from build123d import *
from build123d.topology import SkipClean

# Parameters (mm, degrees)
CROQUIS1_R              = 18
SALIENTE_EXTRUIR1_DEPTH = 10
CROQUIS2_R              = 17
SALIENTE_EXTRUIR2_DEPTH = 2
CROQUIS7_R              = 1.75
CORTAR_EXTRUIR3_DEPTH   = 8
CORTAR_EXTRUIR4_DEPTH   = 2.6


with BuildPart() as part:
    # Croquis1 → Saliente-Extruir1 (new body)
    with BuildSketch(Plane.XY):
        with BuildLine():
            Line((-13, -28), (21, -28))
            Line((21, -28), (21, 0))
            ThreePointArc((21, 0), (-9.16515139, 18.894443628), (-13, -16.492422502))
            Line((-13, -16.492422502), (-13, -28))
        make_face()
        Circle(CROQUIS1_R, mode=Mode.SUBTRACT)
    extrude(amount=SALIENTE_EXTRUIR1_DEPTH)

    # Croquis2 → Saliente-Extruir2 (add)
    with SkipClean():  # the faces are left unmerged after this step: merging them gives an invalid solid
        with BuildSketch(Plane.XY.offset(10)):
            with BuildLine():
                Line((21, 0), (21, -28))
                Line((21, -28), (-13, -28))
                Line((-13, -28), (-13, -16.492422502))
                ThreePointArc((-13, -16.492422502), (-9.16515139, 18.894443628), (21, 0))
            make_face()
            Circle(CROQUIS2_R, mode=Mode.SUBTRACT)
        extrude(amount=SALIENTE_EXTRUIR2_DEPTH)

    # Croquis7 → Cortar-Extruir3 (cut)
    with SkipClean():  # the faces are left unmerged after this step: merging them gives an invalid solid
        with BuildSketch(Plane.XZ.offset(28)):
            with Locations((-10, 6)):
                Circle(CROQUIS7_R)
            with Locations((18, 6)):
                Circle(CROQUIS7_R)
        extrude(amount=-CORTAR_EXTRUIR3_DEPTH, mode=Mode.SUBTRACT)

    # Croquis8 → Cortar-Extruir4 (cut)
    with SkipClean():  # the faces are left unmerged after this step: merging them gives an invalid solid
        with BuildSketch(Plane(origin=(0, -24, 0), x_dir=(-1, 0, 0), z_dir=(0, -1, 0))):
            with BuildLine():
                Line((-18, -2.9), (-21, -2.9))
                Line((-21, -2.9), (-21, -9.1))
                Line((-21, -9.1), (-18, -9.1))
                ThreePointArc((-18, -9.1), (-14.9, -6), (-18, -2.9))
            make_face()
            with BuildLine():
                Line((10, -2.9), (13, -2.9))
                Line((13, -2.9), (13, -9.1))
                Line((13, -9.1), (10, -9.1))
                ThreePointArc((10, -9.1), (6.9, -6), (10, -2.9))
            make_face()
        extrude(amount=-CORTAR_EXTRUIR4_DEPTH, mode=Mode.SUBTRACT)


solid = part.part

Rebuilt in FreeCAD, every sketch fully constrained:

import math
import FreeCAD as App
import Part
import Sketcher
Q = App.Units.Quantity

doc = App.newDocument("Part")
body = doc.addObject("PartDesign::Body", "Body")

# Sketch on XY plane
sketch1 = body.newObject("Sketcher::SketchObject", "Sketch")
sketch1.AttachmentSupport = (doc.getObject("XY_Plane"), [""])
sketch1.MapMode = "FlatFace"
sketch1.addGeometry([
    Part.LineSegment(App.Vector(-13, -28, 0), App.Vector(21, -28, 0)),  # 0
    Part.LineSegment(App.Vector(21, -28, 0), App.Vector(21, 0, 0)),  # 1
    Part.ArcOfCircle(Part.Circle(App.Vector(0, 0, 0), App.Vector(0, 0, 1), 21), math.radians(0), math.radians(232)),  # 2
    Part.LineSegment(App.Vector(-13, -16, 0), App.Vector(-13, -28, 0)),  # 3
    Part.Circle(App.Vector(0, 0, 0), App.Vector(0, 0, 1), 18),  # 4
], False)
sketch1.addConstraint([
    Sketcher.Constraint("Coincident", 0, 2, 1, 1),
    Sketcher.Constraint("Tangent", 1, 2, 2, 1),
    Sketcher.Constraint("Coincident", 2, 2, 3, 1),
    Sketcher.Constraint("Coincident", 3, 2, 0, 1),
    Sketcher.Constraint("Horizontal", 0),
    Sketcher.Constraint("Vertical", 1),
    Sketcher.Constraint("Vertical", 3),
    Sketcher.Constraint("Coincident", 2, 3, -1, 1),
    Sketcher.Constraint("Coincident", 4, 3, -1, 1),
    Sketcher.Constraint("Diameter", 4, Q("36 mm")),
    Sketcher.Constraint("Radius", 2, Q("21 mm")),
    Sketcher.Constraint("DistanceX", 0, 1, 0, 2, Q("34 mm")),
    Sketcher.Constraint("DistanceY", 1, 1, 1, 2, Q("28 mm")),
])
pad1 = body.newObject("PartDesign::Pad", "Pad")
pad1.Profile = sketch1
pad1.Length = 10

# Sketch on XY plane
sketch2 = body.newObject("Sketcher::SketchObject", "Sketch001")
sketch2.AttachmentSupport = (doc.getObject("XY_Plane"), [""])
sketch2.MapMode = "FlatFace"
sketch2.AttachmentOffset = App.Placement(App.Vector(0, 0, 10), App.Rotation())
sketch2.addGeometry([
    Part.LineSegment(App.Vector(21, -28, 0), App.Vector(21, 0, 0)),  # 0
    Part.ArcOfCircle(Part.Circle(App.Vector(0, 0, 0), App.Vector(0, 0, 1), 21), math.radians(0), math.radians(232)),  # 1
    Part.LineSegment(App.Vector(-13, -16, 0), App.Vector(-13, -28, 0)),  # 2
    Part.LineSegment(App.Vector(-13, -28, 0), App.Vector(21, -28, 0)),  # 3
    Part.Circle(App.Vector(0, 0, 0), App.Vector(0, 0, 1), 17),  # 4
], False)
sketch2.addConstraint([
    Sketcher.Constraint("Tangent", 0, 2, 1, 1),
    Sketcher.Constraint("Coincident", 1, 2, 2, 1),
    Sketcher.Constraint("Coincident", 2, 2, 3, 1),
    Sketcher.Constraint("Coincident", 3, 2, 0, 1),
    Sketcher.Constraint("Vertical", 0),
    Sketcher.Constraint("Vertical", 2),
    Sketcher.Constraint("Horizontal", 3),
    Sketcher.Constraint("Coincident", 1, 3, -1, 1),
    Sketcher.Constraint("Coincident", 4, 3, -1, 1),
    Sketcher.Constraint("Diameter", 4, Q("34 mm")),
    Sketcher.Constraint("Radius", 1, Q("21 mm")),
    Sketcher.Constraint("DistanceX", 3, 1, 3, 2, Q("34 mm")),
    Sketcher.Constraint("DistanceY", 0, 1, 0, 2, Q("28 mm")),
])
pad2 = body.newObject("PartDesign::Pad", "Pad001")
pad2.Profile = sketch2
pad2.Length = 2

# Sketch on XZ plane
sketch3 = body.newObject("Sketcher::SketchObject", "Sketch002")
sketch3.AttachmentSupport = (doc.getObject("XZ_Plane"), [""])
sketch3.MapMode = "FlatFace"
sketch3.AttachmentOffset = App.Placement(App.Vector(0, 0, 28), App.Rotation())
sketch3.addGeometry([
    Part.Circle(App.Vector(-10, 6, 0), App.Vector(0, 0, 1), 1.8),
    Part.Circle(App.Vector(18, 6, 0), App.Vector(0, 0, 1), 1.8),
], False)
sketch3.addConstraint([
    Sketcher.Constraint("Equal", 0, 1),
    Sketcher.Constraint("Horizontal", 0, 3, 1, 3),
    Sketcher.Constraint("Diameter", 0, Q("3.5 mm")),
    Sketcher.Constraint("DistanceX", 0, 3, -1, 1, Q("10 mm")),
    Sketcher.Constraint("DistanceY", -1, 1, 0, 3, Q("6 mm")),
    Sketcher.Constraint("DistanceX", -1, 1, 1, 3, Q("18 mm")),
])
pocket1 = body.newObject("PartDesign::Pocket", "Pocket")
pocket1.Profile = sketch3
pocket1.Length = 8

# Sketch on XZ plane
sketch4 = body.newObject("Sketcher::SketchObject", "Sketch003")
sketch4.AttachmentSupport = (doc.getObject("XZ_Plane"), [""])
sketch4.MapMode = "FlatFace"
sketch4.AttachmentOffset = App.Placement(App.Vector(0, 0, 24), App.Rotation())
sketch4.addGeometry([
    Part.LineSegment(App.Vector(18, 2.9, 0), App.Vector(21, 2.9, 0)),  # 0
    Part.LineSegment(App.Vector(21, 2.9, 0), App.Vector(21, 9.1, 0)),  # 1
    Part.LineSegment(App.Vector(21, 9.1, 0), App.Vector(18, 9.1, 0)),  # 2
    Part.ArcOfCircle(Part.Circle(App.Vector(18, 6, 0), App.Vector(0, 0, 1), 3.1), math.radians(90), math.radians(270)),  # 3
    Part.LineSegment(App.Vector(-13, 2.9, 0), App.Vector(-10, 2.9, 0)),  # 4
    Part.ArcOfCircle(Part.Circle(App.Vector(-10, 6, 0), App.Vector(0, 0, 1), 3.1), math.radians(-90), math.radians(90)),  # 5
    Part.LineSegment(App.Vector(-10, 9.1, 0), App.Vector(-13, 9.1, 0)),  # 6
    Part.LineSegment(App.Vector(-13, 9.1, 0), App.Vector(-13, 2.9, 0)),  # 7
], False)
sketch4.addConstraint([
    Sketcher.Constraint("Coincident", 0, 2, 1, 1),
    Sketcher.Constraint("Coincident", 1, 2, 2, 1),
    Sketcher.Constraint("Tangent", 2, 2, 3, 1),
    Sketcher.Constraint("Tangent", 3, 2, 0, 1),
    Sketcher.Constraint("Tangent", 4, 2, 5, 1),
    Sketcher.Constraint("Tangent", 5, 2, 6, 1),
    Sketcher.Constraint("Coincident", 6, 2, 7, 1),
    Sketcher.Constraint("Coincident", 7, 2, 4, 1),
    Sketcher.Constraint("Horizontal", 0),
    Sketcher.Constraint("Vertical", 1),
    Sketcher.Constraint("Horizontal", 2),
    Sketcher.Constraint("Horizontal", 4),
    Sketcher.Constraint("Horizontal", 6),
    Sketcher.Constraint("Vertical", 7),
    Sketcher.Constraint("Equal", 3, 5),
    Sketcher.Constraint("Horizontal", 3, 3, 5, 3),
    Sketcher.Constraint("Equal", 2, 4),
    Sketcher.Constraint("Radius", 3, Q("3.1 mm")),
    Sketcher.Constraint("DistanceX", 0, 1, 0, 2, Q("3 mm")),
    Sketcher.Constraint("DistanceX", -1, 1, 3, 3, Q("18 mm")),
    Sketcher.Constraint("DistanceY", -1, 1, 3, 3, Q("6 mm")),
    Sketcher.Constraint("DistanceX", 5, 3, -1, 1, Q("10 mm")),
])
pocket2 = body.newObject("PartDesign::Pocket", "Pocket001")
pocket2.Profile = sketch4
pocket2.Length = 2.6

doc.recompute()
